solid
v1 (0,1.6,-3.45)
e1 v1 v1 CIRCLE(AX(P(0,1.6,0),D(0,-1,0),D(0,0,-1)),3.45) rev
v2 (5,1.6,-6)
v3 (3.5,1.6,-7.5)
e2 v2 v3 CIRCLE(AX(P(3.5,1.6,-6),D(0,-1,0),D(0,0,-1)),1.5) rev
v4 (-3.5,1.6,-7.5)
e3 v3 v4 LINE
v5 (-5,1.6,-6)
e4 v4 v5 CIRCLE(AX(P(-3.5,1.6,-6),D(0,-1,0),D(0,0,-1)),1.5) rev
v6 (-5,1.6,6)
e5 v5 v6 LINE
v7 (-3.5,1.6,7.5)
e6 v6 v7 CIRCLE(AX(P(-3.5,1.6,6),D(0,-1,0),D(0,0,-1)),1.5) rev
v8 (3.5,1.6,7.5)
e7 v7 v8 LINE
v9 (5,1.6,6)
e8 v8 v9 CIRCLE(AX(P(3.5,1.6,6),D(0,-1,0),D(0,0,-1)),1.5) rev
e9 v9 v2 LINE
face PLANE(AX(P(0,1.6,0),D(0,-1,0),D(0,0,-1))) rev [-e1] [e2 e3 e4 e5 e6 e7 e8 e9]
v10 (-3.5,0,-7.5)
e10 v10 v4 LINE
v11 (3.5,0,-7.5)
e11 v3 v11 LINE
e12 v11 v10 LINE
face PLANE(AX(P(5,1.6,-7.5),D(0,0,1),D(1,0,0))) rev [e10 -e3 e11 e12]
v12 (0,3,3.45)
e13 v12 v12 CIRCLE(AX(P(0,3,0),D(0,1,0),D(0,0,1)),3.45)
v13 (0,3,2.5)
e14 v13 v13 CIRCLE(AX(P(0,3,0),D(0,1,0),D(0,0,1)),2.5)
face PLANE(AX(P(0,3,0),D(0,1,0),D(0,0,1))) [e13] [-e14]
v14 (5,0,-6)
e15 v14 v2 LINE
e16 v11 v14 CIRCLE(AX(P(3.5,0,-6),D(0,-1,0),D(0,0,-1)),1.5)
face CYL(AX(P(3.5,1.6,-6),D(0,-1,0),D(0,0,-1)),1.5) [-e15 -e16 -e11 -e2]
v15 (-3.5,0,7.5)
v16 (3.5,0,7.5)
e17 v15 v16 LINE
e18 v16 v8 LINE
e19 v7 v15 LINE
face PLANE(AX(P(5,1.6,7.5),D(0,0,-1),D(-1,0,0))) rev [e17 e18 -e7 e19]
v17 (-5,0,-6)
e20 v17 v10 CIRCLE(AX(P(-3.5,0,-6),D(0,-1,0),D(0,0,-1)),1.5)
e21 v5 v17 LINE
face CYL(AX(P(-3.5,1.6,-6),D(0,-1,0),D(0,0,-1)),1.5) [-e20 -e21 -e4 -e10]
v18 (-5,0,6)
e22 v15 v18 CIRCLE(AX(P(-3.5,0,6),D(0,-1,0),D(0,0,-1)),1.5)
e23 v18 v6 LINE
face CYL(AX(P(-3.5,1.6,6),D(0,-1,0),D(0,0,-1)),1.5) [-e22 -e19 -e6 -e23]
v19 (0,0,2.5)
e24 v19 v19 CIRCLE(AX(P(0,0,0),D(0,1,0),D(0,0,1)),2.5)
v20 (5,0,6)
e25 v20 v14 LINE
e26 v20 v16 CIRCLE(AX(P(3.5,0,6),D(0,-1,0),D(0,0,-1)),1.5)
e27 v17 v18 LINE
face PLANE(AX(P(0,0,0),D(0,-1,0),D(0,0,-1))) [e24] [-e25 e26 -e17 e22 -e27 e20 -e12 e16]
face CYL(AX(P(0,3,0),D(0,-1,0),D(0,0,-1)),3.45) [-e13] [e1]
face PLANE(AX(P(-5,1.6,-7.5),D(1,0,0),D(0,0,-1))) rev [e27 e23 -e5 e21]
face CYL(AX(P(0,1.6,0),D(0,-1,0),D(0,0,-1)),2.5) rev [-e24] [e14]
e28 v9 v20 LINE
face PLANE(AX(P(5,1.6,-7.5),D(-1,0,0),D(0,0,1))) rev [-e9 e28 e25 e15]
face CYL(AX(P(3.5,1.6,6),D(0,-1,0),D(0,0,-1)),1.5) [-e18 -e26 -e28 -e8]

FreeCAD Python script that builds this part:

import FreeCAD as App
import Part
import Sketcher


def edges_at(feature, points):
    """Names of the edges that pass closest to the given points."""
    edges = feature.Shape.Edges
    near = lambda p: min(range(len(edges)), key=lambda i: edges[i].distToShape(Part.Vertex(*p))[0])
    return sorted({f"Edge{near(p) + 1}" for p in points})


def add_polygon(sketch, points):
    """Adds a closed chain of lines whose ends are joined by coincident constraints."""
    first, n = sketch.GeometryCount, len(points)
    for a, b in zip(points, points[1:] + points[:1]):
        sketch.addGeometry(Part.LineSegment(App.Vector(*a, 0), App.Vector(*b, 0)), False)
    for i in range(n):
        sketch.addConstraint(Sketcher.Constraint("Coincident", first + i, 2, first + (i + 1) % n, 1))

doc = App.newDocument("Part")
params = doc.addObject("Spreadsheet::Sheet", "Params")
for row, (alias, value) in enumerate([
    ("sketch1_diameter", "5 mm"),
    ("sketch1_width", "10 mm"),
    ("sketch1_height", "15 mm"),
    ("pad1_length", "1.6 mm"),
    ("fillet_radius", "1.5 mm"),
    ("sketch2_diameter", "5 mm"),
    ("sketch2_diameter2", "6.9 mm"),
    ("pad2_length", "1.4 mm"),
], start=1):
    params.set(f"A{row}", alias)
    params.set(f"B{row}", "=" + value)
    params.setAlias(f"B{row}", alias)

body = doc.addObject("PartDesign::Body", "Body")

# Sketch on XZ plane
sketch1 = body.newObject("Sketcher::SketchObject", "Sketch")
sketch1.AttachmentSupport = (doc.getObject("XZ_Plane"), [""])
sketch1.MapMode = "FlatFace"
add_polygon(sketch1, [(-5, -7.5), (-5, 7.5), (5, 7.5), (5, -7.5)])  # lines 0-3
sketch1.addGeometry(Part.Circle(App.Vector(0, 0, 0), App.Vector(0, 0, 1), 2.5), False)  # 4
sketch1.addConstraint([
    Sketcher.Constraint("Vertical", 0),
    Sketcher.Constraint("Horizontal", 1),
    Sketcher.Constraint("Vertical", 2),
    Sketcher.Constraint("Horizontal", 3),
    Sketcher.Constraint("Coincident", 4, 3, -1, 1),
    Sketcher.Constraint("Symmetric", 0, 2, 2, 2, -1, 1),
    Sketcher.Constraint("Diameter", 4, 5.0),
    Sketcher.Constraint("DistanceX", 1, 1, 1, 2, 10.0),
    Sketcher.Constraint("DistanceY", 0, 1, 0, 2, 15.0),
])
sketch1.setExpression("Constraints[10]", "Params.sketch1_diameter")
sketch1.setExpression("Constraints[11]", "Params.sketch1_width")
sketch1.setExpression("Constraints[12]", "Params.sketch1_height")
pad1 = body.newObject("PartDesign::Pad", "Pad")
pad1.Profile = sketch1
pad1.setExpression("Length", "Params.pad1_length")
pad1.Reversed = True
doc.recompute()

fillet = body.newObject("PartDesign::Fillet", "Fillet")
fillet.Base = (pad1, edges_at(pad1, [
    (-5, 0.8, -7.5),
    (5, 0.8, -7.5),
    (5, 0.8, 7.5),
    (-5, 0.8, 7.5),
]))
fillet.setExpression("Radius", "Params.fillet_radius")

# Sketch on XZ plane
sketch2 = body.newObject("Sketcher::SketchObject", "Sketch001")
sketch2.AttachmentSupport = (doc.getObject("XZ_Plane"), [""])
sketch2.MapMode = "FlatFace"
sketch2.AttachmentOffset = App.Placement(App.Vector(0, 0, -1.6), App.Rotation())
sketch2.addGeometry([
    Part.Circle(App.Vector(0, 0, 0), App.Vector(0, 0, 1), 3.45),
    Part.Circle(App.Vector(0, 0, 0), App.Vector(0, 0, 1), 2.5),
], False)
sketch2.addConstraint([
    Sketcher.Constraint("Coincident", 0, 3, -1, 1),
    Sketcher.Constraint("Coincident", 1, 3, -1, 1),
    Sketcher.Constraint("Diameter", 1, 5.0),
    Sketcher.Constraint("Diameter", 0, 6.9),
])
sketch2.setExpression("Constraints[2]", "Params.sketch2_diameter")
sketch2.setExpression("Constraints[3]", "Params.sketch2_diameter2")
pad2 = body.newObject("PartDesign::Pad", "Pad001")
pad2.Profile = sketch2
pad2.setExpression("Length", "Params.pad2_length")
pad2.Reversed = True

doc.recompute()
